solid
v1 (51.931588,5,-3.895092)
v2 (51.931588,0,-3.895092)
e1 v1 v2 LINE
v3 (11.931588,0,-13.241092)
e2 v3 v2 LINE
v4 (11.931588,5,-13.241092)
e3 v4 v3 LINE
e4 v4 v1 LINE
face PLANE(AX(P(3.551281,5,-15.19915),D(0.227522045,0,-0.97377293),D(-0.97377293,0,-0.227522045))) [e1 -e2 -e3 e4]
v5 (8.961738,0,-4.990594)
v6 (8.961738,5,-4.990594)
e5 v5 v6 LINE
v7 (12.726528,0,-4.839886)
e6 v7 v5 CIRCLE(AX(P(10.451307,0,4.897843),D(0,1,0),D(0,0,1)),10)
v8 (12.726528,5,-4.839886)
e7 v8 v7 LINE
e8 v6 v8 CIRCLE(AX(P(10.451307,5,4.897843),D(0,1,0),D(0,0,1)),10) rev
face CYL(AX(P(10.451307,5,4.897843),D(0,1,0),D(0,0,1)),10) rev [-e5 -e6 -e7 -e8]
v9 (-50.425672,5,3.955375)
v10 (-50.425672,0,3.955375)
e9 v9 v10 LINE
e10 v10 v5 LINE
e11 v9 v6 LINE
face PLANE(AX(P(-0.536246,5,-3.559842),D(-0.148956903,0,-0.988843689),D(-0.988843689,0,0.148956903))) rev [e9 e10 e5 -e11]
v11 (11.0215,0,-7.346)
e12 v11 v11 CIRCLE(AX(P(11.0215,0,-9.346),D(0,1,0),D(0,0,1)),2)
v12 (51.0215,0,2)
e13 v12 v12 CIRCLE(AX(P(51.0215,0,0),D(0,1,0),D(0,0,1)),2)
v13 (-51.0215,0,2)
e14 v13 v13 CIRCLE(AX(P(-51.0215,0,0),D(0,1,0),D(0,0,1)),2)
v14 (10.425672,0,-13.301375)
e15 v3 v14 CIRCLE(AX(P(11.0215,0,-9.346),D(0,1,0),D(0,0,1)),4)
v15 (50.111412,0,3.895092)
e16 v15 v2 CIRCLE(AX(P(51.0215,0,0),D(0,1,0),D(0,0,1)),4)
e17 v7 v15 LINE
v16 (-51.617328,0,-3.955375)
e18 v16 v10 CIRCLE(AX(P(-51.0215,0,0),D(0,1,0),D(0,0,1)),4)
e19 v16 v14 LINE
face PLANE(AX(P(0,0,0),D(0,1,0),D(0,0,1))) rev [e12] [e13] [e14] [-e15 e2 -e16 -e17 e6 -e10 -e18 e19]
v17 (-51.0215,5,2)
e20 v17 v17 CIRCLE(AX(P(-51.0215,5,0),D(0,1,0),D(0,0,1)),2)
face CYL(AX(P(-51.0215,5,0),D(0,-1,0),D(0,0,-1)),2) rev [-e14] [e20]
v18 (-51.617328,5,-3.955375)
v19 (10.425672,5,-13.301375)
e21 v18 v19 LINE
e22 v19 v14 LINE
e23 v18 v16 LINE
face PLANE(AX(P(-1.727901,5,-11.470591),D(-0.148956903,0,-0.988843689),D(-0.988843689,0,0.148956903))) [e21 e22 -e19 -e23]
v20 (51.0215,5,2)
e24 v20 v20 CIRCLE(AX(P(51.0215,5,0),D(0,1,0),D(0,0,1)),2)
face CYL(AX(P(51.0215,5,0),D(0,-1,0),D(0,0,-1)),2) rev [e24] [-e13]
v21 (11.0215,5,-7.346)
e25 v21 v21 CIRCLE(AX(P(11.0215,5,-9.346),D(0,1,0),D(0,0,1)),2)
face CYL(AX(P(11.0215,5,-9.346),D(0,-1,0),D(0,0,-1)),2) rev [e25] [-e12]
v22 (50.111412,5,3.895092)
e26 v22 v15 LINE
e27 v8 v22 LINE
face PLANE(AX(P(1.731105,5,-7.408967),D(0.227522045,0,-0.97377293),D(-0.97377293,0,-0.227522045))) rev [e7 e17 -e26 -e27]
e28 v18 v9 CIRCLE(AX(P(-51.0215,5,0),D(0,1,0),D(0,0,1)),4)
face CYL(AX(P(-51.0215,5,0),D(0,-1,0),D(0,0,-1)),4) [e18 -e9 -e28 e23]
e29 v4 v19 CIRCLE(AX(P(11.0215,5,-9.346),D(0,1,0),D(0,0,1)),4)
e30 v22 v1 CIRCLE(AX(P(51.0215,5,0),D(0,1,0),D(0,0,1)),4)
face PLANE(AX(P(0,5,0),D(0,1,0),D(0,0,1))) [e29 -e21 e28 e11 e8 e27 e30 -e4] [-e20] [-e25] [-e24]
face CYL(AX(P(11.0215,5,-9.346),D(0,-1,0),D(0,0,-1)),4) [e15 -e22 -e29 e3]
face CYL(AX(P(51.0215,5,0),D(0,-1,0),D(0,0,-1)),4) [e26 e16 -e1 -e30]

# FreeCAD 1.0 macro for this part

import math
import FreeCAD as App
import Part
import Sketcher

V = App.Vector
Q = App.Units.Quantity


def edges_at(feature, points):
    """Names of the edges that pass closest to the given points."""
    edges = feature.Shape.Edges
    near = lambda p: min(range(len(edges)), key=lambda i: edges[i].distToShape(Part.Vertex(*p))[0])
    return sorted({f"Edge{near(p) + 1}" for p in points})

doc = App.newDocument("Part")
params = doc.addObject("Spreadsheet::Sheet", "Params")
for row, (alias, value) in enumerate([
    ("sketch1_diameter", "4 mm"),
    ("sketch1_radius", "4 mm"),
    ("pad1_length", "5 mm"),
    ("fillet_radius", "10 mm"),
], start=1):
    params.set(f"A{row}", alias)
    params.set(f"B{row}", "=" + value)
    params.setAlias(f"B{row}", alias)

body = doc.addObject("PartDesign::Body", "Body")

# Sketch on XZ plane
sketch1 = body.newObject("Sketcher::SketchObject", "Sketch")
sketch1.AttachmentSupport = (doc.getObject("XZ_Plane"), [""])
sketch1.MapMode = "FlatFace"
sketch1.addGeometry(Part.LineSegment(V(10.4, -13.3, 0), V(-51.6, -4, 0)), False)
sketch1.addGeometry(Part.ArcOfCircle(Part.Circle(V(-51, 0, 0), V(0, 0, 1), 4), math.radians(81), math.radians(261)), False)
sketch1.addGeometry(Part.LineSegment(V(-50.4, 4, 0), V(10.9, -5.3, 0)), False)
sketch1.addGeometry(Part.LineSegment(V(10.9, -5.3, 0), V(50.1, 3.9, 0)), False)
sketch1.addGeometry(Part.ArcOfCircle(Part.Circle(V(51, 0, 0), V(0, 0, 1), 4), math.radians(-77), math.radians(103)), False)
sketch1.addGeometry(Part.LineSegment(V(51.9, -3.9, 0), V(11.9, -13.2, 0)), False)
sketch1.addGeometry(Part.ArcOfCircle(Part.Circle(V(11, -9.3, 0), V(0, 0, 1), 4), math.radians(-99), math.radians(-77)), False)
sketch1.addGeometry(Part.Circle(V(-51, 0, 0), V(0, 0, 1), 2), False)
sketch1.addGeometry(Part.Circle(V(51, 0, 0), V(0, 0, 1), 2), False)
sketch1.addGeometry(Part.Circle(V(11, -9.3, 0), V(0, 0, 1), 2), False)
sketch1.addConstraint(Sketcher.Constraint("Tangent", 0, 2, 1, 2))
sketch1.addConstraint(Sketcher.Constraint("Tangent", 1, 1, 2, 1))
sketch1.addConstraint(Sketcher.Constraint("Coincident", 2, 2, 3, 1))
sketch1.addConstraint(Sketcher.Constraint("Tangent", 3, 2, 4, 2))
sketch1.addConstraint(Sketcher.Constraint("Tangent", 4, 1, 5, 1))
sketch1.addConstraint(Sketcher.Constraint("Tangent", 5, 2, 6, 2))
sketch1.addConstraint(Sketcher.Constraint("Tangent", 6, 1, 0, 1))
sketch1.addConstraint(Sketcher.Constraint("Coincident", 7, 3, 1, 3))
sketch1.addConstraint(Sketcher.Constraint("Coincident", 8, 3, 4, 3))
sketch1.addConstraint(Sketcher.Constraint("Coincident", 9, 3, 6, 3))
sketch1.addConstraint(Sketcher.Constraint("Equal", 1, 4))
sketch1.addConstraint(Sketcher.Constraint("Equal", 4, 6))
sketch1.addConstraint(Sketcher.Constraint("Equal", 7, 8))
sketch1.addConstraint(Sketcher.Constraint("Equal", 8, 9))
sketch1.addConstraint(Sketcher.Constraint("Symmetric", 1, 3, 4, 3, -1, 1))
sketch1.addConstraint(Sketcher.Constraint("PointOnObject", 1, 3, -1))
sketch1.addConstraint(Sketcher.Constraint("Parallel", 0, 2))
sketch1.addConstraint(Sketcher.Constraint("Parallel", 3, 5))
sketch1.addConstraint(Sketcher.Constraint("Diameter", 7, Q("4 mm")))
sketch1.addConstraint(Sketcher.Constraint("Radius", 1, Q("4 mm")))
sketch1.addConstraint(Sketcher.Constraint("DistanceX", 6, 3, 4, 3, Q("40 mm")))
sketch1.addConstraint(Sketcher.Constraint("DistanceY", 6, 3, -1, 1, Q("9.346 mm")))
sketch1.addConstraint(Sketcher.Constraint("DistanceX", 1, 3, 4, 3, Q("102.043 mm")))
sketch1.setExpression("Constraints[18]", "Params.sketch1_diameter")
sketch1.setExpression("Constraints[19]", "Params.sketch1_radius")
pad1 = body.newObject("PartDesign::Pad", "Pad")
pad1.Profile = sketch1
pad1.setExpression("Length", "Params.pad1_length")
pad1.Reversed = True
doc.recompute()

fillet = body.newObject("PartDesign::Fillet", "Fillet")
fillet.Base = (pad1, edges_at(pad1, [(10.859, 2.5, -5.276)]))
fillet.setExpression("Radius", "Params.fillet_radius")

doc.recompute()
